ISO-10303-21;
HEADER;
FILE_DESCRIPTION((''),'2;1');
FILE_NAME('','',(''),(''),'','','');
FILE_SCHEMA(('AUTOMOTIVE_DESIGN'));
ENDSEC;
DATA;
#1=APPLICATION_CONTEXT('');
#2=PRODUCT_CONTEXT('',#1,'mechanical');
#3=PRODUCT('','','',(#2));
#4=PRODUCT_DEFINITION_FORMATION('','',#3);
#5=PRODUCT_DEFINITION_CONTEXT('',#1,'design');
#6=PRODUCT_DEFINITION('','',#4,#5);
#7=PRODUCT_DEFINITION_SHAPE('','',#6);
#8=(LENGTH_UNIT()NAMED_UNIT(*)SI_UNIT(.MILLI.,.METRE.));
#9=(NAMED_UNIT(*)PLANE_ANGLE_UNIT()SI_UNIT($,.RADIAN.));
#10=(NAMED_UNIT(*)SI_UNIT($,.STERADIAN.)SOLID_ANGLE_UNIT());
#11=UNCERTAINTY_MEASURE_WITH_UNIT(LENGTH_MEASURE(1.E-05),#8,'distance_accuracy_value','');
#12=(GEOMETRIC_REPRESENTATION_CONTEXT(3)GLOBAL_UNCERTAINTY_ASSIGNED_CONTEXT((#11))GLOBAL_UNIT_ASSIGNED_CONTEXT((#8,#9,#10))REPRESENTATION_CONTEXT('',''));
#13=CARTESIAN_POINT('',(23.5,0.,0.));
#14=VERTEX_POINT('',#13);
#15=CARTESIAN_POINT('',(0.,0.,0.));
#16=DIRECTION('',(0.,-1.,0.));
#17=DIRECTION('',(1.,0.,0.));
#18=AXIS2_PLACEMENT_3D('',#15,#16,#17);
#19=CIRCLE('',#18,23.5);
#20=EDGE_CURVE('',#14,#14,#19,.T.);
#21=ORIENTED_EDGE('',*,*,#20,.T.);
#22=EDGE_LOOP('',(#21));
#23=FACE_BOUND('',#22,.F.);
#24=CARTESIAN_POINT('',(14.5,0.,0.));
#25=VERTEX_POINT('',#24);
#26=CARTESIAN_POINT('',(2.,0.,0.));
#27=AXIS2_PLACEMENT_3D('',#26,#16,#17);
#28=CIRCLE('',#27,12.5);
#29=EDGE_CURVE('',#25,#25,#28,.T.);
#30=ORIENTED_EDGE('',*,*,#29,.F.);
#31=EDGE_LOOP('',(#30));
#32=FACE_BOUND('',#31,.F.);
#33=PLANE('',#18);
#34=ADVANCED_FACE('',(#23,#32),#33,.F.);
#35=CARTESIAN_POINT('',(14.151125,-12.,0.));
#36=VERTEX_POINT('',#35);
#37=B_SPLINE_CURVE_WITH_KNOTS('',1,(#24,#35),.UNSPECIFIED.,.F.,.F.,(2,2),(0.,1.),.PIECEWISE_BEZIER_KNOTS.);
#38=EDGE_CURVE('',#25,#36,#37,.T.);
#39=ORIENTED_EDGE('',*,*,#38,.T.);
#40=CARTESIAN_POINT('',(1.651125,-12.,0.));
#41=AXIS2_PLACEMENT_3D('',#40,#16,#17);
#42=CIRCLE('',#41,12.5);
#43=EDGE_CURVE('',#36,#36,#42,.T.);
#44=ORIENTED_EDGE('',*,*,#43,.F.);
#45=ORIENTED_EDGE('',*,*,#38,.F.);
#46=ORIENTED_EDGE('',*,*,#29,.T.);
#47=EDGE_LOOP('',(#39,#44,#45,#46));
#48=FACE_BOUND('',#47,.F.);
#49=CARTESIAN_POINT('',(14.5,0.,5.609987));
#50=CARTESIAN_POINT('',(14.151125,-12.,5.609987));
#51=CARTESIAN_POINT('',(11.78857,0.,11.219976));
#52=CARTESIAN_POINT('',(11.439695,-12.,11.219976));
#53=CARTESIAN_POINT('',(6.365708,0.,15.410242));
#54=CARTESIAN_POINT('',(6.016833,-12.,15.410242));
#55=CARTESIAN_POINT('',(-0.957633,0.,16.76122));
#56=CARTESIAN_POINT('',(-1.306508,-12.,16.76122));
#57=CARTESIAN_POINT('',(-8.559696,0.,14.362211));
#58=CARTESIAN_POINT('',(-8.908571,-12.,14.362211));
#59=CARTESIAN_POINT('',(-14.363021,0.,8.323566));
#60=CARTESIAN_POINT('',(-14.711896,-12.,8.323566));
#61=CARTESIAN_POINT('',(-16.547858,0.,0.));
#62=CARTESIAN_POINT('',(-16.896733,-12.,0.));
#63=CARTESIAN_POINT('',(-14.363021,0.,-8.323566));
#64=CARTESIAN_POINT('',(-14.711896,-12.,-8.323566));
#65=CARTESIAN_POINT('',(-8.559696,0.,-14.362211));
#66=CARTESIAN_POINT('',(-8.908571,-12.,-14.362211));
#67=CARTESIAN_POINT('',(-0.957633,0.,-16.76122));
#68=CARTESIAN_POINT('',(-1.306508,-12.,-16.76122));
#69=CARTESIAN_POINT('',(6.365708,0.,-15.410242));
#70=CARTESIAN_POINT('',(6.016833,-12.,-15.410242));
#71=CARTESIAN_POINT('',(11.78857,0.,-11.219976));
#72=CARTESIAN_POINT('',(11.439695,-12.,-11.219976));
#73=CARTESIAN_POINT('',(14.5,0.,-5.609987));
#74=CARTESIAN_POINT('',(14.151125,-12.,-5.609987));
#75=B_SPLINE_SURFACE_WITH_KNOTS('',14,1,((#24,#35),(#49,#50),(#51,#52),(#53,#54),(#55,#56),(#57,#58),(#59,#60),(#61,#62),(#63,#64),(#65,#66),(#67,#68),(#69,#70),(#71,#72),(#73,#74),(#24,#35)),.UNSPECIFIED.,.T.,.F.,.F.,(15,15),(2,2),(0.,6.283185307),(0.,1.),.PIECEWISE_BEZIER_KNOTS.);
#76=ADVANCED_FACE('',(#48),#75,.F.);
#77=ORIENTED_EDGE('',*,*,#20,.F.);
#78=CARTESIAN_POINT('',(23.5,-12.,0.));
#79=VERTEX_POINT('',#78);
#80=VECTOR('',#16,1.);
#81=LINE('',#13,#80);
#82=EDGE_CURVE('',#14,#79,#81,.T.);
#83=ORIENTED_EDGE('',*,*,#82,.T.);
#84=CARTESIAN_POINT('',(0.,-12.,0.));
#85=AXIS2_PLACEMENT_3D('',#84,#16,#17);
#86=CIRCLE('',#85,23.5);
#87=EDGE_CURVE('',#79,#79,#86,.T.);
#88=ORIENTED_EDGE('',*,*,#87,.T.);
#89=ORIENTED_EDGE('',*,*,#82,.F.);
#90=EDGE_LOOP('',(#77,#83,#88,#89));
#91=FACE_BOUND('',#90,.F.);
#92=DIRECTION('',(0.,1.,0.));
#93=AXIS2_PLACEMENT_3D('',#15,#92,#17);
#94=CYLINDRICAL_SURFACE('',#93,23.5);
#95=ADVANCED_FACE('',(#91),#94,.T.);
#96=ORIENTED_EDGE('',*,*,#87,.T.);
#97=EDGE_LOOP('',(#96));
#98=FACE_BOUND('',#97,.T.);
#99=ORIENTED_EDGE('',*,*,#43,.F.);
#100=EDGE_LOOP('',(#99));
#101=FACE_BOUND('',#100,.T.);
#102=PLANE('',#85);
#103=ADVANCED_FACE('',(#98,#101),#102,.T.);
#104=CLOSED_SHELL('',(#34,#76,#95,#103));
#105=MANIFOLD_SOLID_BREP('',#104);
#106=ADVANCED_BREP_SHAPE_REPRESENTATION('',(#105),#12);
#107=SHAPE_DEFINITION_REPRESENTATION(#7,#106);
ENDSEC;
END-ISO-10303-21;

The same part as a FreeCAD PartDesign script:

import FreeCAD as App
import Part
import Sketcher

V = App.Vector
Q = App.Units.Quantity

doc = App.newDocument("Part")
body = doc.addObject("PartDesign::Body", "Body")

# Sketch on XZ plane
sketch1 = body.newObject("Sketcher::SketchObject", "Sketch")
sketch1.AttachmentSupport = (doc.getObject("XZ_Plane"), [""])
sketch1.MapMode = "FlatFace"
sketch1.addGeometry(Part.Circle(V(0, 0, 0), V(0, 0, 1), 24), False)
sketch1.addConstraint([
    Sketcher.Constraint("Coincident", 0, 3, -1, 1),
    Sketcher.Constraint("Diameter", 0, Q("47 mm")),
])
pad1 = body.newObject("PartDesign::Pad", "Pad")
pad1.Profile = sketch1
pad1.Length = 12

# Sketch on XZ plane
sketch2 = body.newObject("Sketcher::SketchObject", "Sketch001")
sketch2.AttachmentSupport = (doc.getObject("XZ_Plane"), [""])
sketch2.MapMode = "FlatFace"
sketch2.addGeometry(Part.Circle(V(2, 0, 0), V(0, 0, 1), 12), False)
sketch2.addConstraint([
    Sketcher.Constraint("PointOnObject", 0, 3, -1),
    Sketcher.Constraint("Diameter", 0, Q("25 mm")),
    Sketcher.Constraint("DistanceX", -1, 1, 0, 3, Q("2 mm")),
])

# Sketch on XZ plane
sketch3 = body.newObject("Sketcher::SketchObject", "Sketch002")
sketch3.AttachmentSupport = (doc.getObject("XZ_Plane"), [""])
sketch3.MapMode = "FlatFace"
sketch3.AttachmentOffset = App.Placement(V(0, 0, 12), App.Rotation())
sketch3.addGeometry(Part.Circle(V(2, 0, 0), V(0, 0, 1), 12), False)
sketch3.addConstraint([
    Sketcher.Constraint("PointOnObject", 0, 3, -1),
    Sketcher.Constraint("Diameter", 0, Q("25 mm")),
    Sketcher.Constraint("DistanceX", -1, 1, 0, 3, Q("1.651125 mm")),
])

subtractiveloft = body.newObject("PartDesign::SubtractiveLoft", "SubtractiveLoft")
subtractiveloft.Profile = sketch2
subtractiveloft.Sections = [sketch3]

doc.recompute()
